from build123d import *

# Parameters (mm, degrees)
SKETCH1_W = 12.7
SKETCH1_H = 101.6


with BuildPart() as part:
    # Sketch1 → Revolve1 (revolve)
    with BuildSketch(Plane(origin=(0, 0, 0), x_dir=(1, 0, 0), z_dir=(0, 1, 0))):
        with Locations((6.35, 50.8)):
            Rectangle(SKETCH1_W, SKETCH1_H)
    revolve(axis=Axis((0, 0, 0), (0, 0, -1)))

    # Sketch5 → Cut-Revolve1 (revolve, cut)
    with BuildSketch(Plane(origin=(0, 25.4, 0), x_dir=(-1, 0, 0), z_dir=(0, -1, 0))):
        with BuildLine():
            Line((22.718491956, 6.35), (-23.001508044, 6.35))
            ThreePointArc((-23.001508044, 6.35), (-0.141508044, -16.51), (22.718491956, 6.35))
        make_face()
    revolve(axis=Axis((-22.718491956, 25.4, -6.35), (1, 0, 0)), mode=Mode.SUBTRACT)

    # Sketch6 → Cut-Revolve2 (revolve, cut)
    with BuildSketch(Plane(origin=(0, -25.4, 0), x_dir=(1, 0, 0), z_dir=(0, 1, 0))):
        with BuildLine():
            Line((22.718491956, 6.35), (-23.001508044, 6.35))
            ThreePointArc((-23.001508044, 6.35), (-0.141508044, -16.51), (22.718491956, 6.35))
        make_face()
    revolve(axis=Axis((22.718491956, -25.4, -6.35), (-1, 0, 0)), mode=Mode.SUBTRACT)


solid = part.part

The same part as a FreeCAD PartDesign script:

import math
import FreeCAD as App
import Part
import Sketcher
Q = App.Units.Quantity


def add_polygon(sketch, points):
    """Adds a closed chain of lines whose ends are joined by coincident constraints."""
    first, n = sketch.GeometryCount, len(points)
    for a, b in zip(points, points[1:] + points[:1]):
        sketch.addGeometry(Part.LineSegment(App.Vector(*a, 0), App.Vector(*b, 0)), False)
    for i in range(n):
        sketch.addConstraint(Sketcher.Constraint("Coincident", first + i, 2, first + (i + 1) % n, 1))

doc = App.newDocument("Part")
body = doc.addObject("PartDesign::Body", "Body")

sketch1 = body.newObject("Sketcher::SketchObject", "Sketch")
sketch1.AttachmentSupport = (doc.getObject("XZ_Plane"), [""])
sketch1.MapMode = "FlatFace"
add_polygon(sketch1, [(0, -102), (0, 0), (13, 0), (13, -102)])
sketch1.addConstraint([
    Sketcher.Constraint("Vertical", 0),
    Sketcher.Constraint("Horizontal", 1),
    Sketcher.Constraint("Vertical", 2),
    Sketcher.Constraint("Horizontal", 3),
    Sketcher.Constraint("Coincident", 0, 2, -1, 1),
    Sketcher.Constraint("DistanceY", 0, 1, 0, 2, Q("4 in")),
    Sketcher.Constraint("DistanceX", 1, 1, 1, 2, Q("0.5 in")),
])
revolution = body.newObject("PartDesign::Revolution", "Revolution")
revolution.Profile = sketch1
revolution.ReferenceAxis = (sketch1, ["V_Axis"])
revolution.Angle = 360

sketch2 = body.newObject("Sketcher::SketchObject", "Sketch001")
sketch2.AttachmentSupport = (doc.getObject("XZ_Plane"), [""])
sketch2.MapMode = "FlatFace"
sketch2.AttachmentOffset = App.Placement(App.Vector(0, 0, -1 * 25.4), App.Rotation())
sketch2.addGeometry([
    Part.LineSegment(App.Vector(-23, -6, 0), App.Vector(23, -6, 0)),
    Part.ArcOfCircle(Part.Circle(App.Vector(0, -6, 0), App.Vector(0, 0, 1), 23), math.radians(0), math.radians(180)),
], False)
sketch2.addGeometry(Part.LineSegment(App.Vector(-23, -6, 0), App.Vector(23, -6, 0)), True)
sketch2.addConstraint([
    Sketcher.Constraint("Coincident", 0, 1, 1, 2),
    Sketcher.Constraint("Coincident", 1, 1, 0, 2),
    Sketcher.Constraint("Horizontal", 0),
    Sketcher.Constraint("Horizontal", 2),
    Sketcher.Constraint("Coincident", 2, 1, 0, 1),
    Sketcher.Constraint("Horizontal", 1, 3, 0, 1),
    Sketcher.Constraint("Equal", 0, 2),
    Sketcher.Constraint("Radius", 1, Q("0.9 in")),
    Sketcher.Constraint("DistanceY", 1, 3, -1, 1, Q("0.25 in")),
    Sketcher.Constraint("DistanceX", -1, 1, 1, 3, 0.141508),
])
groove = body.newObject("PartDesign::Groove", "Groove")
groove.Profile = sketch2
groove.ReferenceAxis = (sketch2, ["Axis0"])
groove.Angle = 360

sketch3 = body.newObject("Sketcher::SketchObject", "Sketch002")
sketch3.AttachmentSupport = (doc.getObject("XZ_Plane"), [""])
sketch3.MapMode = "FlatFace"
sketch3.AttachmentOffset = App.Placement(App.Vector(0, 0, 1 * 25.4), App.Rotation())
sketch3.addGeometry([
    Part.LineSegment(App.Vector(23, -6, 0), App.Vector(-23, -6, 0)),
    Part.ArcOfCircle(Part.Circle(App.Vector(0, -6, 0), App.Vector(0, 0, 1), 23), math.radians(0), math.radians(180)),
], False)
sketch3.addGeometry(Part.LineSegment(App.Vector(23, -6, 0), App.Vector(-23, -6, 0)), True)
sketch3.addConstraint([
    Sketcher.Constraint("Coincident", 0, 1, 1, 1),
    Sketcher.Constraint("Coincident", 1, 2, 0, 2),
    Sketcher.Constraint("Horizontal", 0),
    Sketcher.Constraint("Horizontal", 2),
    Sketcher.Constraint("Coincident", 2, 1, 0, 1),
    Sketcher.Constraint("Horizontal", 1, 3, 0, 1),
    Sketcher.Constraint("Equal", 0, 2),
    Sketcher.Constraint("Radius", 1, Q("0.9 in")),
    Sketcher.Constraint("DistanceY", 1, 3, -1, 1, Q("0.25 in")),
    Sketcher.Constraint("DistanceX", 1, 3, -1, 1, 0.141508),
])
groove2 = body.newObject("PartDesign::Groove", "Groove001")
groove2.Profile = sketch3
groove2.ReferenceAxis = (sketch3, ["Axis0"])
groove2.Angle = 360

doc.recompute()
